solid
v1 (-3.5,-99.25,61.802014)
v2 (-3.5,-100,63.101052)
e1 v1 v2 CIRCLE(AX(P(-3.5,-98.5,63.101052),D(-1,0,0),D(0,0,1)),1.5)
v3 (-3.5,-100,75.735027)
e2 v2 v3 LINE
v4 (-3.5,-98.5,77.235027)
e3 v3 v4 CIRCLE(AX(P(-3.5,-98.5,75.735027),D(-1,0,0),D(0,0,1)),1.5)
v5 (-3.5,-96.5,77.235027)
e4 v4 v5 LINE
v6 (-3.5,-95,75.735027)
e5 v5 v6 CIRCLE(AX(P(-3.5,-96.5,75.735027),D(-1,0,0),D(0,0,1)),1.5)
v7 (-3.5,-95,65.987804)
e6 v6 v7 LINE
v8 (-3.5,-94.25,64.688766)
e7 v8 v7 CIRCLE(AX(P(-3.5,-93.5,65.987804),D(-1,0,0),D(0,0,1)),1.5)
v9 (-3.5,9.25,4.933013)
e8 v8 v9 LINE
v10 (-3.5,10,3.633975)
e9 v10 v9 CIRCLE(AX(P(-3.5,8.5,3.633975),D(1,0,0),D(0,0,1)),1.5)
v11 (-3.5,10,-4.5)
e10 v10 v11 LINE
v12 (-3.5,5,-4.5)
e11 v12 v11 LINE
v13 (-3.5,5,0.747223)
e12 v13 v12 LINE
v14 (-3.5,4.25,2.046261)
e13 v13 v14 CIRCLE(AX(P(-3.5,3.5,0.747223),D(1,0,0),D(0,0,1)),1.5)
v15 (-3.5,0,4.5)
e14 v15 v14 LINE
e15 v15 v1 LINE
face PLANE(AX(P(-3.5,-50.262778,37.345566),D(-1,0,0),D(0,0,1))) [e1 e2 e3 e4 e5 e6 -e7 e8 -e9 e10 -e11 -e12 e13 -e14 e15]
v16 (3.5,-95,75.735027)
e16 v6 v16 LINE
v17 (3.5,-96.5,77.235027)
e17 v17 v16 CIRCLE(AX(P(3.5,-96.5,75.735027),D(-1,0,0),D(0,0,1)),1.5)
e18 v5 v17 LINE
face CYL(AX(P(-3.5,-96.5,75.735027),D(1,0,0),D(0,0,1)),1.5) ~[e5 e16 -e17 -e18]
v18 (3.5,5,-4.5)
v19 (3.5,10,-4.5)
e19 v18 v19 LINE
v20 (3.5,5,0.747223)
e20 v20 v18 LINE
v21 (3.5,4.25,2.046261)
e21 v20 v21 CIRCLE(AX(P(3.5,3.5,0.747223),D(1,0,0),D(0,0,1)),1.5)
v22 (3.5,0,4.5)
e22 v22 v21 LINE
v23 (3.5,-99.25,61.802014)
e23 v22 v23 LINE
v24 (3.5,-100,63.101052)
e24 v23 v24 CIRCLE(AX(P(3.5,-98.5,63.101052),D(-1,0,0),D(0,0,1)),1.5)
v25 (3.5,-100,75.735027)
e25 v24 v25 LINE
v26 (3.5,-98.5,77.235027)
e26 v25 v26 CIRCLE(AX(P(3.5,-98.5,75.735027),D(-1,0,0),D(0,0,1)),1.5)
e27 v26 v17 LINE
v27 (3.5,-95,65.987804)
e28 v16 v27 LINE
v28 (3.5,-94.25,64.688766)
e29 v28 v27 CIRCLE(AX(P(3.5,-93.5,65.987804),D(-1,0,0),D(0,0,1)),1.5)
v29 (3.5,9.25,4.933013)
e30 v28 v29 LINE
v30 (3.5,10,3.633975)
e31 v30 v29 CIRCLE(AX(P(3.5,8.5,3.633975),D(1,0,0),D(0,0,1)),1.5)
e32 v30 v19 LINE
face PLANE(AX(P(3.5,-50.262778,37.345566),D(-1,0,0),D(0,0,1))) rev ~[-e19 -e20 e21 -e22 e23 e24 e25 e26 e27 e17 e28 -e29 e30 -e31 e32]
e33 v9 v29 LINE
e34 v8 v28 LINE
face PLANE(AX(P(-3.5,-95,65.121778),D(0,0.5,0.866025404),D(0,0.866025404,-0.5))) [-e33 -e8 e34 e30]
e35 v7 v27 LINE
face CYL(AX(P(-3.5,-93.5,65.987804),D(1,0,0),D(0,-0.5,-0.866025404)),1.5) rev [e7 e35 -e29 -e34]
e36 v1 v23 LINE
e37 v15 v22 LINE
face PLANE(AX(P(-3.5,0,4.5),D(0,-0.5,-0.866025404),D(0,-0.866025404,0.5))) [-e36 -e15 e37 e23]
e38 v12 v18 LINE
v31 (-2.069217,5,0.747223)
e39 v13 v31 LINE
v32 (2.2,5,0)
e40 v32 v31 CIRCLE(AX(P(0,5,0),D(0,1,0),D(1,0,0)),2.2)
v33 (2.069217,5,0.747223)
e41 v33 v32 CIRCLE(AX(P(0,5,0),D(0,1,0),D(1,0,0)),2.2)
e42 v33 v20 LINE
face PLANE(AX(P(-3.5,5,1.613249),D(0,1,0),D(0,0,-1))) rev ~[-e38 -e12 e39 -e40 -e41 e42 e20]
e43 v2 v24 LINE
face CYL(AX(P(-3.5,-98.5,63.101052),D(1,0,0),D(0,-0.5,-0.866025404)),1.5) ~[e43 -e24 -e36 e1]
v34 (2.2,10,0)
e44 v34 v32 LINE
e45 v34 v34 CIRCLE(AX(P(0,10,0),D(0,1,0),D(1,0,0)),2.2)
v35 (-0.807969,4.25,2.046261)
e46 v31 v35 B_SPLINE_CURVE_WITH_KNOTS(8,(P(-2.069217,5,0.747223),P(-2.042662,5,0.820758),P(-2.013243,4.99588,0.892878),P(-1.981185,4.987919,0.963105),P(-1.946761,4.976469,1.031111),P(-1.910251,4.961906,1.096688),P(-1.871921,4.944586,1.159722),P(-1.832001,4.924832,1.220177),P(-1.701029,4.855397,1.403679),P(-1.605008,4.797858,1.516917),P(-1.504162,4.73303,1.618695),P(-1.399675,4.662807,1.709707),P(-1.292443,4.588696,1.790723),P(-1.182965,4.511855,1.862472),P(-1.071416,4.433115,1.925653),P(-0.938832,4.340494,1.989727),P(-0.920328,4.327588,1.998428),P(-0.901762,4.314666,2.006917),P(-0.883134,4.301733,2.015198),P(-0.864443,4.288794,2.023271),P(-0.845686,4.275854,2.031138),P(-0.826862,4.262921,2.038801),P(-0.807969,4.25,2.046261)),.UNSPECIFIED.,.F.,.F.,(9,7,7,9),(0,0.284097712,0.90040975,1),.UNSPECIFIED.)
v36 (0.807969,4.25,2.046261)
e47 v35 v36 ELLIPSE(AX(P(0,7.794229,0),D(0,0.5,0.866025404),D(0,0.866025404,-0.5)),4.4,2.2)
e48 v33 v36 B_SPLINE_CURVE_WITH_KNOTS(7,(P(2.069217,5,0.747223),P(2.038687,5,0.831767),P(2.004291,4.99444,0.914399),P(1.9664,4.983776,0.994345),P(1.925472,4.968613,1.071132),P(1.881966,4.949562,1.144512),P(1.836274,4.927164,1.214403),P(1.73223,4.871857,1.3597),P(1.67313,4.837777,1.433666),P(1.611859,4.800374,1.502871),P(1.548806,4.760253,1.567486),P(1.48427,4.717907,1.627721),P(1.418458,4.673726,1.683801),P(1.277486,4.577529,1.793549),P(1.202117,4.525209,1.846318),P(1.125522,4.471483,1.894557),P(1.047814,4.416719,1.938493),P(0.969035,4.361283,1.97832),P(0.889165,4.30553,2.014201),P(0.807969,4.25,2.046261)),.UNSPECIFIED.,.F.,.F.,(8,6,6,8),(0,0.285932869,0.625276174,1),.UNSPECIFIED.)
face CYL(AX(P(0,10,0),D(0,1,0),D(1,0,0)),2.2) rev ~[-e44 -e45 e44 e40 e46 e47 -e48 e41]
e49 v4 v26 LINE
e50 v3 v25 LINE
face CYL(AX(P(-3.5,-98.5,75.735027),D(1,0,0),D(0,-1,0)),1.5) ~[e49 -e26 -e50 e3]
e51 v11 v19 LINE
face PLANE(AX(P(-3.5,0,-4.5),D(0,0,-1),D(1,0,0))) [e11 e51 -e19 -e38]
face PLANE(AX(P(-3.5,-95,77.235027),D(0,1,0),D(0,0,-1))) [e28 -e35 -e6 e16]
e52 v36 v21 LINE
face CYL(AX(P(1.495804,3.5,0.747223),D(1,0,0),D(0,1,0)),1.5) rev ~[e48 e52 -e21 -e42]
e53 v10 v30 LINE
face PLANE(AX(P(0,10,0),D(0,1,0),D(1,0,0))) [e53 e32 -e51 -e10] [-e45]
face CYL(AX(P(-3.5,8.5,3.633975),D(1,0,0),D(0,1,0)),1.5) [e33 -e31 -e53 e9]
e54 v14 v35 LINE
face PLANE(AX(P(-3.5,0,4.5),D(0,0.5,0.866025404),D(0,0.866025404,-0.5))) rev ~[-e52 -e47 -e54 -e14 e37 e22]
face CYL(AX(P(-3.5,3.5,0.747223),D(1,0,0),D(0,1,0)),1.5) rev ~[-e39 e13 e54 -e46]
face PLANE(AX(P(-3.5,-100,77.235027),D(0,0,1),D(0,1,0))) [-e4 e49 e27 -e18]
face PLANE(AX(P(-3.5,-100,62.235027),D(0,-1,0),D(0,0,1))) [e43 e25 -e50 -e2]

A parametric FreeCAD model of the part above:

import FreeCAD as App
import Part
import Sketcher
from FreeCAD import Vector
Q = App.Units.Quantity


def edges_at(feature, points):
    """Names of the edges that pass closest to the given points."""
    edges = feature.Shape.Edges
    near = lambda p: min(range(len(edges)), key=lambda i: edges[i].distToShape(Part.Vertex(*p))[0])
    return sorted({f"Edge{near(p) + 1}" for p in points})


def add_polygon(sketch, points):
    """Adds a closed chain of lines whose ends are joined by coincident constraints."""
    first, n = sketch.GeometryCount, len(points)
    for a, b in zip(points, points[1:] + points[:1]):
        sketch.addGeometry(Part.LineSegment(App.Vector(*a, 0), App.Vector(*b, 0)), False)
    for i in range(n):
        sketch.addConstraint(Sketcher.Constraint("Coincident", first + i, 2, first + (i + 1) % n, 1))

doc = App.newDocument("Part")
body = doc.addObject("PartDesign::Body", "Body")

# Sketch on XZ plane
sketch1 = body.newObject("Sketcher::SketchObject", "Sketch")
sketch1.AttachmentSupport = (doc.getObject("XZ_Plane"), [""])
sketch1.MapMode = "FlatFace"
add_polygon(sketch1, [(-4, -4), (-4, 4), (4, 4), (4, -4)])  # lines 0-3
sketch1.addConstraint([
    Sketcher.Constraint("Vertical", 0),
    Sketcher.Constraint("Horizontal", 1),
    Sketcher.Constraint("Vertical", 2),
    Sketcher.Constraint("Horizontal", 3),
    Sketcher.Constraint("Symmetric", 0, 2, 2, 2, -1, 1),
    Sketcher.Constraint("DistanceX", 1, 1, 1, 2, 7.0),
    Sketcher.Constraint("DistanceY", 0, 1, 0, 2, 9.0),
])
pad1 = body.newObject("PartDesign::Pad", "Pad")
pad1.Profile = sketch1
pad1.Length = 10
pad1.Reversed = True

# Sketch on XZ plane
sketch2 = body.newObject("Sketcher::SketchObject", "Sketch001")
sketch2.AttachmentSupport = (doc.getObject("XZ_Plane"), [""])
sketch2.MapMode = "FlatFace"
sketch2.AttachmentOffset = App.Placement(Vector(0, 0, -10), App.Rotation())
sketch2.addGeometry(Part.Circle(Vector(0, 0, 0), Vector(0, 0, 1), 2.2), False)
sketch2.addConstraint([
    Sketcher.Constraint("Coincident", 0, 3, -1, 1),
    Sketcher.Constraint("Diameter", 0, 4.4),
])
pocket1 = body.newObject("PartDesign::Pocket", "Pocket")
pocket1.Profile = sketch2
pocket1.Length = 10
pocket1.Reversed = True

# Sketch on YZ plane
sketch3 = body.newObject("Sketcher::SketchObject", "Sketch002")
sketch3.AttachmentSupport = (doc.getObject("YZ_Plane"), [""])
sketch3.MapMode = "FlatFace"
sketch3.AttachmentOffset = App.Placement(Vector(0, 0, -3.5), App.Rotation())
add_polygon(sketch3, [(10, 4), (0, 4), (-100, 62), (-100, 77), (-95, 77), (-95, 65)])  # lines 0-5
sketch3.addConstraint([
    Sketcher.Constraint("Horizontal", 0),
    Sketcher.Constraint("Vertical", 2),
    Sketcher.Constraint("Horizontal", 3),
    Sketcher.Constraint("Vertical", 4),
    Sketcher.Constraint("PointOnObject", 0, 2, -2),
    Sketcher.Constraint("Parallel", 1, 5),
    Sketcher.Constraint("DistanceX", 0, 2, 0, 1, 10.0),
    Sketcher.Constraint("DistanceX", 3, 1, 3, 2, 5.0),
    Sketcher.Constraint("DistanceY", 2, 1, 2, 2, 15.0),
    Sketcher.Constraint("Angle", 1, Q("150 deg")),
    Sketcher.Constraint("DistanceX", 1, 2, -1, 1, 100.0),
    Sketcher.Constraint("DistanceY", -1, 1, 0, 2, 4.5),
])
pad2 = body.newObject("PartDesign::Pad", "Pad001")
pad2.Profile = sketch3
pad2.Length = 7

# Sketch on YZ plane
sketch4 = body.newObject("Sketcher::SketchObject", "Sketch003")
sketch4.AttachmentSupport = (doc.getObject("YZ_Plane"), [""])
sketch4.MapMode = "FlatFace"
sketch4.AttachmentOffset = App.Placement(Vector(0, 0, -3.5), App.Rotation())
add_polygon(sketch4, [(0, 4), (5, 2), (5, -4), (0, -4)])  # lines 0-3
sketch4.addConstraint([
    Sketcher.Constraint("Vertical", 1),
    Sketcher.Constraint("Horizontal", 2),
    Sketcher.Constraint("Vertical", 3),
    Sketcher.Constraint("Symmetric", 2, 2, 3, 2, -1, 1),
    Sketcher.Constraint("DistanceX", 2, 2, 2, 1, 5.0),
    Sketcher.Constraint("DistanceY", 3, 1, 3, 2, 9.0),
    Sketcher.Constraint("Angle", 0, Q("-30 deg")),
])
pocket2 = body.newObject("PartDesign::Pocket", "Pocket001")
pocket2.Profile = sketch4
pocket2.Length = 7
pocket2.Reversed = True
doc.recompute()

fillet = body.newObject("PartDesign::Fillet", "Fillet")
fillet.Base = (pocket2, edges_at(pocket2, [(0, 10, 4.5)]))
fillet.Radius = 1.5
doc.recompute()

fillet2 = body.newObject("PartDesign::Fillet", "Fillet001")
fillet2.Base = (fillet, edges_at(fillet, [(2.498, 5, 1.613), (-2.498, 5, 1.613)]))
fillet2.Radius = 1.5
doc.recompute()

fillet3 = body.newObject("PartDesign::Fillet", "Fillet002")
fillet3.Base = (fillet2, edges_at(fillet2, [
    (0, -100, 77.235),
    (0, -100, 62.235),
    (0, -95, 65.122),
    (0, -95, 77.235),
]))
fillet3.Radius = 1.5

doc.recompute()
